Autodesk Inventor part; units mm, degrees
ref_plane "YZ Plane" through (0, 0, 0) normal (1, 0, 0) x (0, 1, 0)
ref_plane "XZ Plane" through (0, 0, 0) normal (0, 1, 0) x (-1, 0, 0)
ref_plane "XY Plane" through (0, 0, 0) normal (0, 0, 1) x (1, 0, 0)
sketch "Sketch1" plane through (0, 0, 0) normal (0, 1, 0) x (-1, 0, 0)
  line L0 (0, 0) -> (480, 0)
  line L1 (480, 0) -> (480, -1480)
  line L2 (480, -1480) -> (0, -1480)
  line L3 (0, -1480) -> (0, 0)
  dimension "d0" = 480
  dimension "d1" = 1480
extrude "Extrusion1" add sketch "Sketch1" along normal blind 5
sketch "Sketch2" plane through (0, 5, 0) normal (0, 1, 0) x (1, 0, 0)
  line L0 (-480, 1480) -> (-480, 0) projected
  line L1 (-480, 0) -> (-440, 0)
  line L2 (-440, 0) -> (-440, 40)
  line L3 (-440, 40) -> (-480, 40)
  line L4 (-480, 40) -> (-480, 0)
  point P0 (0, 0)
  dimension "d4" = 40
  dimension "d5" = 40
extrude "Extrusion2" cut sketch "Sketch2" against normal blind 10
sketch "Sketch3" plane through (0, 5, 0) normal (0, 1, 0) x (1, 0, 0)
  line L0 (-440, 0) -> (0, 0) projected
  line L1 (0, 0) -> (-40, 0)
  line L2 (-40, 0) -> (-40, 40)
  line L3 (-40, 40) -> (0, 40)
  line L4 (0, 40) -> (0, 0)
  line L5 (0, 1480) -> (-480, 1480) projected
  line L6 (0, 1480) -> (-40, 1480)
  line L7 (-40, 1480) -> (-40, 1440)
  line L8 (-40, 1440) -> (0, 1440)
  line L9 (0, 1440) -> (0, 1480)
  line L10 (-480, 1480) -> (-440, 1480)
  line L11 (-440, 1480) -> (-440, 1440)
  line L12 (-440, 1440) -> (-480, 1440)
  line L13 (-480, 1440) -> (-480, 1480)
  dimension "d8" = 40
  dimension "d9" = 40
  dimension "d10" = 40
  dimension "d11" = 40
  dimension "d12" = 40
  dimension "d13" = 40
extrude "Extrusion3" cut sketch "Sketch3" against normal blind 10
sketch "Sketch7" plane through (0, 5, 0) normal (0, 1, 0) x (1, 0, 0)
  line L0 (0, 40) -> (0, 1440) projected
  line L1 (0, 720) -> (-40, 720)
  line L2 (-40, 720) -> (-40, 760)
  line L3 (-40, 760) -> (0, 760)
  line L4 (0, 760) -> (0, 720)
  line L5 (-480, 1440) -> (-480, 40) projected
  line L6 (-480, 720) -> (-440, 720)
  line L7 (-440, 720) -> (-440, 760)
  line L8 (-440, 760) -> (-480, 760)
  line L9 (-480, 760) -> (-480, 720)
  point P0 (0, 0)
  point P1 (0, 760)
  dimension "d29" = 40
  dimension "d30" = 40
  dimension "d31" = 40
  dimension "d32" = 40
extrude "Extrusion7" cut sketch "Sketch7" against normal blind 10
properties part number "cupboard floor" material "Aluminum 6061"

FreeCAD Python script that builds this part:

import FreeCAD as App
import Part
import Sketcher


def add_polygon(sketch, points):
    """Adds a closed chain of lines whose ends are joined by coincident constraints."""
    first, n = sketch.GeometryCount, len(points)
    for a, b in zip(points, points[1:] + points[:1]):
        sketch.addGeometry(Part.LineSegment(App.Vector(*a, 0), App.Vector(*b, 0)), False)
    for i in range(n):
        sketch.addConstraint(Sketcher.Constraint("Coincident", first + i, 2, first + (i + 1) % n, 1))

doc = App.newDocument("Part")
body = doc.addObject("PartDesign::Body", "Body")

sketch1 = doc.addObject("Sketcher::SketchObject", "Sketch")
body.addObject(sketch1)
sketch1.AttachmentSupport = (doc.XZ_Plane, [""])
sketch1.MapMode = "FlatFace"
add_polygon(sketch1, [(-480, 0), (0, 0), (0, -1480), (-480, -1480)])
sketch1.addConstraint(Sketcher.Constraint("Horizontal", 0))
sketch1.addConstraint(Sketcher.Constraint("Vertical", 1))
sketch1.addConstraint(Sketcher.Constraint("Horizontal", 2))
sketch1.addConstraint(Sketcher.Constraint("Vertical", 3))
sketch1.addConstraint(Sketcher.Constraint("Coincident", 0, 2, -1, 1))
sketch1.addConstraint(Sketcher.Constraint("DistanceX", 0, 1, 0, 2, 480.0))
sketch1.addConstraint(Sketcher.Constraint("DistanceY", 1, 2, 1, 1, 1480.0))
pad1 = doc.addObject("PartDesign::Pad", "Pad")
body.addObject(pad1)
pad1.Profile = sketch1
pad1.Length = 5
pad1.Reversed = True

sketch2 = doc.addObject("Sketcher::SketchObject", "Sketch001")
body.addObject(sketch2)
sketch2.AttachmentSupport = (doc.XZ_Plane, [""])
sketch2.MapMode = "FlatFace"
sketch2.AttachmentOffset = App.Placement(App.Vector(0, 0, -5), App.Rotation())
add_polygon(sketch2, [(-440, -40), (-480, -40), (-480, 0), (-440, 0)])
sketch2.addConstraint(Sketcher.Constraint("Horizontal", 0))
sketch2.addConstraint(Sketcher.Constraint("Vertical", 1))
sketch2.addConstraint(Sketcher.Constraint("Horizontal", 2))
sketch2.addConstraint(Sketcher.Constraint("Vertical", 3))
sketch2.addConstraint(Sketcher.Constraint("PointOnObject", 1, 2, -1))
sketch2.addConstraint(Sketcher.Constraint("Equal", 2, 1))
sketch2.addConstraint(Sketcher.Constraint("DistanceX", 0, 2, 0, 1, 40.0))
sketch2.addConstraint(Sketcher.Constraint("DistanceX", 0, 2, -1, 1, 480.0))
pocket1 = doc.addObject("PartDesign::Pocket", "Pocket")
body.addObject(pocket1)
pocket1.Profile = sketch2
pocket1.Length = 10
pocket1.Reversed = True

sketch3 = doc.addObject("Sketcher::SketchObject", "Sketch002")
body.addObject(sketch3)
sketch3.AttachmentSupport = (doc.XZ_Plane, [""])
sketch3.MapMode = "FlatFace"
sketch3.AttachmentOffset = App.Placement(App.Vector(0, 0, -5), App.Rotation())
add_polygon(sketch3, [(-40, -40), (-40, 0), (0, 0), (0, -40)])
add_polygon(sketch3, [(0, -1440), (0, -1480), (-40, -1480), (-40, -1440)])
add_polygon(sketch3, [(-440, -1440), (-440, -1480), (-480, -1480), (-480, -1440)])
sketch3.addConstraint(Sketcher.Constraint("Vertical", 0))
sketch3.addConstraint(Sketcher.Constraint("Horizontal", 1))
sketch3.addConstraint(Sketcher.Constraint("Vertical", 2))
sketch3.addConstraint(Sketcher.Constraint("Horizontal", 3))
sketch3.addConstraint(Sketcher.Constraint("Vertical", 4))
sketch3.addConstraint(Sketcher.Constraint("Horizontal", 5))
sketch3.addConstraint(Sketcher.Constraint("Vertical", 6))
sketch3.addConstraint(Sketcher.Constraint("Horizontal", 7))
sketch3.addConstraint(Sketcher.Constraint("Vertical", 8))
sketch3.addConstraint(Sketcher.Constraint("Horizontal", 9))
sketch3.addConstraint(Sketcher.Constraint("Vertical", 10))
sketch3.addConstraint(Sketcher.Constraint("Horizontal", 11))
sketch3.addConstraint(Sketcher.Constraint("Coincident", 1, 2, -1, 1))
sketch3.addConstraint(Sketcher.Constraint("PointOnObject", 4, 2, -2))
sketch3.addConstraint(Sketcher.Constraint("Horizontal", 5, 2, 8, 2))
sketch3.addConstraint(Sketcher.Constraint("Horizontal", 7, 2, 10, 2))
sketch3.addConstraint(Sketcher.Constraint("Vertical", 3, 2, 5, 2))
sketch3.addConstraint(Sketcher.Constraint("Equal", 7, 9))
sketch3.addConstraint(Sketcher.Constraint("Equal", 11, 0))
sketch3.addConstraint(Sketcher.Constraint("Equal", 2, 4))
sketch3.addConstraint(Sketcher.Constraint("DistanceX", 1, 1, 1, 2, 40.0))
sketch3.addConstraint(Sketcher.Constraint("DistanceY", 4, 2, -1, 1, 1480.0))
sketch3.addConstraint(Sketcher.Constraint("DistanceX", 8, 2, -1, 1, 440.0))
pocket2 = doc.addObject("PartDesign::Pocket", "Pocket001")
body.addObject(pocket2)
pocket2.Profile = sketch3
pocket2.Length = 10
pocket2.Reversed = True

sketch4 = doc.addObject("Sketcher::SketchObject", "Sketch003")
body.addObject(sketch4)
sketch4.AttachmentSupport = (doc.XZ_Plane, [""])
sketch4.MapMode = "FlatFace"
sketch4.AttachmentOffset = App.Placement(App.Vector(0, 0, -5), App.Rotation())
add_polygon(sketch4, [(-40, -720), (0, -720), (0, -760), (-40, -760)])
add_polygon(sketch4, [(-440, -760), (-480, -760), (-480, -720), (-440, -720)])
sketch4.addConstraint(Sketcher.Constraint("Horizontal", 0))
sketch4.addConstraint(Sketcher.Constraint("Vertical", 1))
sketch4.addConstraint(Sketcher.Constraint("Horizontal", 2))
sketch4.addConstraint(Sketcher.Constraint("Vertical", 3))
sketch4.addConstraint(Sketcher.Constraint("Horizontal", 4))
sketch4.addConstraint(Sketcher.Constraint("Vertical", 5))
sketch4.addConstraint(Sketcher.Constraint("Horizontal", 6))
sketch4.addConstraint(Sketcher.Constraint("Vertical", 7))
sketch4.addConstraint(Sketcher.Constraint("PointOnObject", 0, 2, -2))
sketch4.addConstraint(Sketcher.Constraint("Horizontal", 2, 2, 4, 2))
sketch4.addConstraint(Sketcher.Constraint("Horizontal", 3, 2, 5, 2))
sketch4.addConstraint(Sketcher.Constraint("Equal", 2, 4))
sketch4.addConstraint(Sketcher.Constraint("Equal", 6, 1))
sketch4.addConstraint(Sketcher.Constraint("DistanceX", 0, 1, 0, 2, 40.0))
sketch4.addConstraint(Sketcher.Constraint("DistanceY", 0, 2, -1, 1, 720.0))
sketch4.addConstraint(Sketcher.Constraint("DistanceX", 4, 2, -1, 1, 480.0))
pocket3 = doc.addObject("PartDesign::Pocket", "Pocket002")
body.addObject(pocket3)
pocket3.Profile = sketch4
pocket3.Length = 10
pocket3.Reversed = True

doc.recompute()
